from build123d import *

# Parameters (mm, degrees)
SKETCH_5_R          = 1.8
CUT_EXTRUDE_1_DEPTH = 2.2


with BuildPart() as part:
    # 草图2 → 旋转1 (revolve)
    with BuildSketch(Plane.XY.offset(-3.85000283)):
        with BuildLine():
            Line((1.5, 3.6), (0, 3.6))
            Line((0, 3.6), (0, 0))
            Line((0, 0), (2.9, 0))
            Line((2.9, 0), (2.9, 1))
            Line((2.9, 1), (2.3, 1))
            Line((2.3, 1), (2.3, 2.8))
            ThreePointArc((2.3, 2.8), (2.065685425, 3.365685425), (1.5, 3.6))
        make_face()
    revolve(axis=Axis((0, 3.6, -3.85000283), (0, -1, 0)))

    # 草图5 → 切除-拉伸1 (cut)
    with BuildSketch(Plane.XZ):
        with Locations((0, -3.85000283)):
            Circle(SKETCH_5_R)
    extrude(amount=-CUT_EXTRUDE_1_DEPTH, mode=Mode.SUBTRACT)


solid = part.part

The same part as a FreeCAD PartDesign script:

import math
import FreeCAD as App
import Part
import Sketcher

V = App.Vector

doc = App.newDocument("Part")
params = doc.addObject("Spreadsheet::Sheet", "Params")
for row, (alias, value) in enumerate([
    ("sketch1_radius", "0.8 mm"),
    ("sketch1_height", "1 mm"),
    ("sketch1_width", "1.5 mm"),
    ("sketch1_width2", "2.9 mm"),
    ("sketch1_height2", "3.6 mm"),
    ("revolution_angle", "360 deg"),
    ("sketch2_diameter", "3.6 mm"),
    ("pocket1_length", "2.2 mm"),
], start=1):
    params.set(f"A{row}", alias)
    params.set(f"B{row}", "=" + value)
    params.setAlias(f"B{row}", alias)

body = doc.addObject("PartDesign::Body", "Body")

# Sketch on XY plane
sketch1 = body.newObject("Sketcher::SketchObject", "Sketch")
sketch1.AttachmentSupport = (doc.getObject("XY_Plane"), [""])
sketch1.MapMode = "FlatFace"
sketch1.AttachmentOffset = App.Placement(V(0, 0, -3.850003), App.Rotation())
sketch1.addGeometry([
    Part.LineSegment(V(1.5, 3.6, 0), V(0, 3.6, 0)),  # 0
    Part.LineSegment(V(0, 3.6, 0), V(0, 0, 0)),  # 1
    Part.LineSegment(V(0, 0, 0), V(2.9, 0, 0)),  # 2
    Part.LineSegment(V(2.9, 0, 0), V(2.9, 1, 0)),  # 3
    Part.LineSegment(V(2.9, 1, 0), V(2.3, 1, 0)),  # 4
    Part.LineSegment(V(2.3, 1, 0), V(2.3, 2.8, 0)),  # 5
    Part.ArcOfCircle(Part.Circle(V(1.5, 2.8, 0), V(0, 0, 1), 0.8), math.radians(0), math.radians(90)),  # 6
], False)
sketch1.addConstraint([
    Sketcher.Constraint("Coincident", 0, 2, 1, 1),
    Sketcher.Constraint("Coincident", 1, 2, 2, 1),
    Sketcher.Constraint("Coincident", 2, 2, 3, 1),
    Sketcher.Constraint("Coincident", 3, 2, 4, 1),
    Sketcher.Constraint("Coincident", 4, 2, 5, 1),
    Sketcher.Constraint("Tangent", 5, 2, 6, 1),
    Sketcher.Constraint("Tangent", 6, 2, 0, 1),
    Sketcher.Constraint("Horizontal", 0),
    Sketcher.Constraint("Vertical", 1),
    Sketcher.Constraint("Horizontal", 2),
    Sketcher.Constraint("Vertical", 3),
    Sketcher.Constraint("Horizontal", 4),
    Sketcher.Constraint("Vertical", 5),
    Sketcher.Constraint("Coincident", 1, 2, -1, 1),
    Sketcher.Constraint("Radius", 6, 0.8),
    Sketcher.Constraint("DistanceY", 3, 1, 3, 2, 1.0),
    Sketcher.Constraint("DistanceX", 0, 2, 0, 1, 1.5),
    Sketcher.Constraint("DistanceX", 2, 1, 2, 2, 2.9),
    Sketcher.Constraint("DistanceY", 1, 2, 1, 1, 3.6),
])
sketch1.setExpression("Constraints[14]", "Params.sketch1_radius")
sketch1.setExpression("Constraints[15]", "Params.sketch1_height")
sketch1.setExpression("Constraints[16]", "Params.sketch1_width")
sketch1.setExpression("Constraints[17]", "Params.sketch1_width2")
sketch1.setExpression("Constraints[18]", "Params.sketch1_height2")
revolution = body.newObject("PartDesign::Revolution", "Revolution")
revolution.Profile = sketch1
revolution.ReferenceAxis = (sketch1, ["V_Axis"])
revolution.setExpression("Angle", "Params.revolution_angle")

# Sketch on XZ plane
sketch2 = body.newObject("Sketcher::SketchObject", "Sketch001")
sketch2.AttachmentSupport = (doc.getObject("XZ_Plane"), [""])
sketch2.MapMode = "FlatFace"
sketch2.addGeometry(Part.Circle(V(0, -3.9, 0), V(0, 0, 1), 1.8), False)
sketch2.addConstraint([
    Sketcher.Constraint("PointOnObject", 0, 3, -2),
    Sketcher.Constraint("Diameter", 0, 3.6),
    Sketcher.Constraint("DistanceY", 0, 3, -1, 1, 3.850003),
])
sketch2.setExpression("Constraints[1]", "Params.sketch2_diameter")
pocket1 = body.newObject("PartDesign::Pocket", "Pocket")
pocket1.Profile = sketch2
pocket1.setExpression("Length", "Params.pocket1_length")

doc.recompute()
